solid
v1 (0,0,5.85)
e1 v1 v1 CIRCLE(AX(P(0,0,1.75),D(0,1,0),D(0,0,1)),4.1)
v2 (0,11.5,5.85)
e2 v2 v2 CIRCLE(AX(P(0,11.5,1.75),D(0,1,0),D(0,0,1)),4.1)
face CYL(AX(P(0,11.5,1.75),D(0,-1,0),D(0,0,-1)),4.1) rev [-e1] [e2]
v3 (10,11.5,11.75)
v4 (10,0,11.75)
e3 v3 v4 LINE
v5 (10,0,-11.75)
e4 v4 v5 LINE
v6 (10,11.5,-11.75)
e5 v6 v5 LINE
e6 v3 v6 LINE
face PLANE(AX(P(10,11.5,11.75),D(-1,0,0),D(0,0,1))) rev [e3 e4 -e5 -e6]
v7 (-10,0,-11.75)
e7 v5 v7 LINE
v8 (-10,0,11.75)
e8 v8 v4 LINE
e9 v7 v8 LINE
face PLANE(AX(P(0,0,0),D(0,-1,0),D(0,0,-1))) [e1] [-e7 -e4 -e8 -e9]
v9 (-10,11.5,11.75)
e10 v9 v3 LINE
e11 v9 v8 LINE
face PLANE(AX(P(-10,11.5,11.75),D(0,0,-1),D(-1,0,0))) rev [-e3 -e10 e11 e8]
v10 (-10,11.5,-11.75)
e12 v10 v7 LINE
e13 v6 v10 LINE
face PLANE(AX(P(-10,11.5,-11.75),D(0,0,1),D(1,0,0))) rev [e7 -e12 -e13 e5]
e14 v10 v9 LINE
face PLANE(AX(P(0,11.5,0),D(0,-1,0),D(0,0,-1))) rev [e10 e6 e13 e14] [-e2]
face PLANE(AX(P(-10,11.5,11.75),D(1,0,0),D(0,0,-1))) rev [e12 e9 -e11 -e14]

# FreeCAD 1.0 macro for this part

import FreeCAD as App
import Part
import Sketcher
from FreeCAD import Vector


def add_polygon(sketch, points):
    """Adds a closed chain of lines whose ends are joined by coincident constraints."""
    first, n = sketch.GeometryCount, len(points)
    for a, b in zip(points, points[1:] + points[:1]):
        sketch.addGeometry(Part.LineSegment(App.Vector(*a, 0), App.Vector(*b, 0)), False)
    for i in range(n):
        sketch.addConstraint(Sketcher.Constraint("Coincident", first + i, 2, first + (i + 1) % n, 1))

doc = App.newDocument("Part")
body = doc.addObject("PartDesign::Body", "Body")

# Sketch on XZ plane
sketch1 = doc.addObject("Sketcher::SketchObject", "Sketch")
body.addObject(sketch1)
sketch1.AttachmentSupport = (doc.XZ_Plane, [""])
sketch1.MapMode = "FlatFace"
add_polygon(sketch1, [(-10, -11.8), (-10, 11.8), (10, 11.8), (10, -11.8)])  # lines 0-3
sketch1.addGeometry(Part.Circle(Vector(0, 1.8, 0), Vector(0, 0, 1), 4.1), False)  # 4
sketch1.addConstraint(Sketcher.Constraint("Vertical", 0))
sketch1.addConstraint(Sketcher.Constraint("Horizontal", 1))
sketch1.addConstraint(Sketcher.Constraint("Vertical", 2))
sketch1.addConstraint(Sketcher.Constraint("Horizontal", 3))
sketch1.addConstraint(Sketcher.Constraint("Symmetric", 0, 2, 2, 2, -1, 1))
sketch1.addConstraint(Sketcher.Constraint("PointOnObject", 4, 3, -2))
sketch1.addConstraint(Sketcher.Constraint("Diameter", 4, 8.2))
sketch1.addConstraint(Sketcher.Constraint("DistanceX", 1, 1, 1, 2, 20.0))
sketch1.addConstraint(Sketcher.Constraint("DistanceY", 0, 1, 0, 2, 23.5))
sketch1.addConstraint(Sketcher.Constraint("DistanceY", 4, 3, 0, 2, 10.0))
pad1 = doc.addObject("PartDesign::Pad", "Pad")
body.addObject(pad1)
pad1.Profile = sketch1
pad1.Length = 11.5
pad1.Reversed = True

doc.recompute()
